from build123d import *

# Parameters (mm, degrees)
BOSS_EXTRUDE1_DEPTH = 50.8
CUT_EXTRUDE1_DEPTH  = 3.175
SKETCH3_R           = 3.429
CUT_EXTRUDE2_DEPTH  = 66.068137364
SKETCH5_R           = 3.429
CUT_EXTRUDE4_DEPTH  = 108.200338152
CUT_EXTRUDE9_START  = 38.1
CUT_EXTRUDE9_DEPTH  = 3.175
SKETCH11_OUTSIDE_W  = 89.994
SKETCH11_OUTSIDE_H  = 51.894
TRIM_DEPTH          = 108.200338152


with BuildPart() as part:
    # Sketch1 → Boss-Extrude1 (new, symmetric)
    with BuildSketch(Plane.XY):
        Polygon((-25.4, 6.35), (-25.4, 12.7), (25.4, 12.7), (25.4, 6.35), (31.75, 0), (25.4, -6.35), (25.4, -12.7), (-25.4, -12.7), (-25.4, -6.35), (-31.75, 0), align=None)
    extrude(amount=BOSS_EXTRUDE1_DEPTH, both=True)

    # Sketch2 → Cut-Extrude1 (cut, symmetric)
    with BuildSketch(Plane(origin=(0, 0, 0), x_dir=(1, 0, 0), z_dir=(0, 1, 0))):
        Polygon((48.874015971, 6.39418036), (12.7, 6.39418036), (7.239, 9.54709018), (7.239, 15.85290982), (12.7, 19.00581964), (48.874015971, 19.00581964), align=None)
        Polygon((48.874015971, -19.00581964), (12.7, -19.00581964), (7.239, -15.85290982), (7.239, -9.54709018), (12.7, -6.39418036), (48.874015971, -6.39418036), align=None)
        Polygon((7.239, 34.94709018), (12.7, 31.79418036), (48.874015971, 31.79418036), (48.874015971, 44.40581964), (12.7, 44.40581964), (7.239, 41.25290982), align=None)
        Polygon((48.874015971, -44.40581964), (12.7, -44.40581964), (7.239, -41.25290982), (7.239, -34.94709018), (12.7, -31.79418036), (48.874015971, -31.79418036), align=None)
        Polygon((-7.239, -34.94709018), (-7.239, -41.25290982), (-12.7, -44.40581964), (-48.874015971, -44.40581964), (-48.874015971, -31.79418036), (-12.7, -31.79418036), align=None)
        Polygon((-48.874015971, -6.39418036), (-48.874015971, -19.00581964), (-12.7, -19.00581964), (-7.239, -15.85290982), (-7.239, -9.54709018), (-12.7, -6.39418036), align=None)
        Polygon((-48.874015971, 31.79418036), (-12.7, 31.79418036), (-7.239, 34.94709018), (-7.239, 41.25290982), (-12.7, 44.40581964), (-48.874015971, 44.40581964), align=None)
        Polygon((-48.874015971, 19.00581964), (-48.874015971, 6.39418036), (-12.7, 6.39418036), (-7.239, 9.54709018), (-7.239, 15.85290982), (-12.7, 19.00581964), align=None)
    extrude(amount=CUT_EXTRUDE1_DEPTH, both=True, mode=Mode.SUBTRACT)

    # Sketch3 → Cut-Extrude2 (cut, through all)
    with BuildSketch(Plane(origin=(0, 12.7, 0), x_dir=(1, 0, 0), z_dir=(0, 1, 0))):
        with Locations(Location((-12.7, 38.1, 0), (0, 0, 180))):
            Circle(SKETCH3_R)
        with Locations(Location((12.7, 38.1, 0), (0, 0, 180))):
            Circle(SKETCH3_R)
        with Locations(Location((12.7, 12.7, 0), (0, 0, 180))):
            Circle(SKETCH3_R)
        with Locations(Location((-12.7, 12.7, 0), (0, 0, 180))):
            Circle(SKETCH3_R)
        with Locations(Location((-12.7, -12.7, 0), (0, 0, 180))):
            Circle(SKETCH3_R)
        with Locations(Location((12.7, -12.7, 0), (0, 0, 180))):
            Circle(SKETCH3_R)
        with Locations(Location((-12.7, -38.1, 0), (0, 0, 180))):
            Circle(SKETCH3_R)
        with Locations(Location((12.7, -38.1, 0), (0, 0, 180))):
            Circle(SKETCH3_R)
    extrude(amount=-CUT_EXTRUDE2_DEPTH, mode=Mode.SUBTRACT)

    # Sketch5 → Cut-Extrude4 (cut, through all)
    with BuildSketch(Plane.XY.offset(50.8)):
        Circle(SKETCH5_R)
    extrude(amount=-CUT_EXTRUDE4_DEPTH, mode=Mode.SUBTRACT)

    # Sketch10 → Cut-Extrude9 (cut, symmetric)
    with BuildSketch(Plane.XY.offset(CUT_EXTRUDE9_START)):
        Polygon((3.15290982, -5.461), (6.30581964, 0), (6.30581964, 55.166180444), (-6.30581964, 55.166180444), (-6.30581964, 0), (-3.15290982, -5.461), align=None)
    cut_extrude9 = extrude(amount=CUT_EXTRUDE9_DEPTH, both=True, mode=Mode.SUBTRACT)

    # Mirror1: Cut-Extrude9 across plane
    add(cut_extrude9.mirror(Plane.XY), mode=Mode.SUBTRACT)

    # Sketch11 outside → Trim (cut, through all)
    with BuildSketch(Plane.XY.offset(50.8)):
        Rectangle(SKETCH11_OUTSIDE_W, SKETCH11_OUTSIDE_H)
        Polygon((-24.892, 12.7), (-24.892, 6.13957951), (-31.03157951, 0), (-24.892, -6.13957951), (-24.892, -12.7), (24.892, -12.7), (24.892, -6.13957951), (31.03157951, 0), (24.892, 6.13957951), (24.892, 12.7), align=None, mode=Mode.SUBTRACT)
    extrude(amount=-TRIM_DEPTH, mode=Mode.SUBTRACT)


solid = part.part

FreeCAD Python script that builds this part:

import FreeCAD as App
import Part
import Sketcher
Q = App.Units.Quantity

doc = App.newDocument("Part")
body = doc.addObject("PartDesign::Body", "Body")

# Sketch on XY plane
sketch1 = body.newObject("Sketcher::SketchObject", "Sketch")
sketch1.AttachmentSupport = (doc.getObject("XY_Plane"), [""])
sketch1.MapMode = "FlatFace"
sketch1.addGeometry([
    Part.LineSegment(App.Vector(-25, 13, 0), App.Vector(-25, 6, 0)),  # 0
    Part.LineSegment(App.Vector(-25, 6, 0), App.Vector(-32, 0, 0)),  # 1
    Part.LineSegment(App.Vector(-32, 0, 0), App.Vector(-25, -6, 0)),  # 2
    Part.LineSegment(App.Vector(-25, -6, 0), App.Vector(-25, -13, 0)),  # 3
    Part.LineSegment(App.Vector(-25, -13, 0), App.Vector(25, -13, 0)),  # 4
    Part.LineSegment(App.Vector(25, -13, 0), App.Vector(25, -6, 0)),  # 5
    Part.LineSegment(App.Vector(25, -6, 0), App.Vector(32, 0, 0)),  # 6
    Part.LineSegment(App.Vector(32, 0, 0), App.Vector(25, 6, 0)),  # 7
    Part.LineSegment(App.Vector(25, 6, 0), App.Vector(25, 13, 0)),  # 8
    Part.LineSegment(App.Vector(25, 13, 0), App.Vector(-25, 13, 0)),  # 9
], False)
sketch1.addConstraint([
    Sketcher.Constraint("Coincident", 0, 2, 1, 1),
    Sketcher.Constraint("Coincident", 1, 2, 2, 1),
    Sketcher.Constraint("Coincident", 2, 2, 3, 1),
    Sketcher.Constraint("Coincident", 3, 2, 4, 1),
    Sketcher.Constraint("Coincident", 4, 2, 5, 1),
    Sketcher.Constraint("Coincident", 5, 2, 6, 1),
    Sketcher.Constraint("Coincident", 6, 2, 7, 1),
    Sketcher.Constraint("Coincident", 7, 2, 8, 1),
    Sketcher.Constraint("Coincident", 8, 2, 9, 1),
    Sketcher.Constraint("Coincident", 9, 2, 0, 1),
    Sketcher.Constraint("Vertical", 0),
    Sketcher.Constraint("Vertical", 3),
    Sketcher.Constraint("Horizontal", 4),
    Sketcher.Constraint("Vertical", 5),
    Sketcher.Constraint("Vertical", 8),
    Sketcher.Constraint("Horizontal", 9),
    Sketcher.Constraint("Symmetric", 0, 2, 5, 2, -1, 1),
    Sketcher.Constraint("Symmetric", 1, 2, 6, 2, -1, 1),
    Sketcher.Constraint("Symmetric", 2, 2, 7, 2, -1, 1),
    Sketcher.Constraint("Symmetric", 2, 2, 5, 2, -2),
    Sketcher.Constraint("PointOnObject", 1, 2, -1),
    Sketcher.Constraint("Perpendicular", 1, 2),
    Sketcher.Constraint("Equal", 0, 3),
    Sketcher.Constraint("DistanceX", 4, 1, 4, 2, Q("2 in")),
    Sketcher.Constraint("DistanceY", 4, 2, 8, 2, Q("1 in")),
    Sketcher.Constraint("DistanceY", 0, 2, 0, 1, Q("0.25 in")),
])
pad1 = body.newObject("PartDesign::Pad", "Pad")
pad1.Profile = sketch1
pad1.Length = Q("4 in")
pad1.Midplane = True

# Sketch on XZ plane
sketch2 = body.newObject("Sketcher::SketchObject", "Sketch001")
sketch2.AttachmentSupport = (doc.getObject("XZ_Plane"), [""])
sketch2.MapMode = "FlatFace"
sketch2.addGeometry([
    Part.LineSegment(App.Vector(13, -6, 0), App.Vector(49, -6, 0)),  # 0
    Part.LineSegment(App.Vector(49, -6, 0), App.Vector(49, -19, 0)),  # 1
    Part.LineSegment(App.Vector(49, -19, 0), App.Vector(13, -19, 0)),  # 2
    Part.LineSegment(App.Vector(13, -19, 0), App.Vector(7, -16, 0)),  # 3
    Part.LineSegment(App.Vector(7, -16, 0), App.Vector(7, -10, 0)),  # 4
    Part.LineSegment(App.Vector(7, -10, 0), App.Vector(13, -6, 0)),  # 5
    Part.LineSegment(App.Vector(13, 19, 0), App.Vector(49, 19, 0)),  # 6
    Part.LineSegment(App.Vector(49, 19, 0), App.Vector(49, 6, 0)),  # 7
    Part.LineSegment(App.Vector(49, 6, 0), App.Vector(13, 6, 0)),  # 8
    Part.LineSegment(App.Vector(13, 6, 0), App.Vector(7, 10, 0)),  # 9
    Part.LineSegment(App.Vector(7, 10, 0), App.Vector(7, 16, 0)),  # 10
    Part.LineSegment(App.Vector(7, 16, 0), App.Vector(13, 19, 0)),  # 11
    Part.LineSegment(App.Vector(7, -35, 0), App.Vector(13, -32, 0)),  # 12
    Part.LineSegment(App.Vector(13, -32, 0), App.Vector(49, -32, 0)),  # 13
    Part.LineSegment(App.Vector(49, -32, 0), App.Vector(49, -44, 0)),  # 14
    Part.LineSegment(App.Vector(49, -44, 0), App.Vector(13, -44, 0)),  # 15
    Part.LineSegment(App.Vector(13, -44, 0), App.Vector(7, -41, 0)),  # 16
    Part.LineSegment(App.Vector(7, -41, 0), App.Vector(7, -35, 0)),  # 17
    Part.LineSegment(App.Vector(13, 44, 0), App.Vector(49, 44, 0)),  # 18
    Part.LineSegment(App.Vector(49, 44, 0), App.Vector(49, 32, 0)),  # 19
    Part.LineSegment(App.Vector(49, 32, 0), App.Vector(13, 32, 0)),  # 20
    Part.LineSegment(App.Vector(13, 32, 0), App.Vector(7, 35, 0)),  # 21
    Part.LineSegment(App.Vector(7, 35, 0), App.Vector(7, 41, 0)),  # 22
    Part.LineSegment(App.Vector(7, 41, 0), App.Vector(13, 44, 0)),  # 23
    Part.LineSegment(App.Vector(-7, 41, 0), App.Vector(-7, 35, 0)),  # 24
    Part.LineSegment(App.Vector(-7, 35, 0), App.Vector(-13, 32, 0)),  # 25
    Part.LineSegment(App.Vector(-13, 32, 0), App.Vector(-49, 32, 0)),  # 26
    Part.LineSegment(App.Vector(-49, 32, 0), App.Vector(-49, 44, 0)),  # 27
    Part.LineSegment(App.Vector(-49, 44, 0), App.Vector(-13, 44, 0)),  # 28
    Part.LineSegment(App.Vector(-13, 44, 0), App.Vector(-7, 41, 0)),  # 29
    Part.LineSegment(App.Vector(-49, 6, 0), App.Vector(-49, 19, 0)),  # 30
    Part.LineSegment(App.Vector(-49, 19, 0), App.Vector(-13, 19, 0)),  # 31
    Part.LineSegment(App.Vector(-13, 19, 0), App.Vector(-7, 16, 0)),  # 32
    Part.LineSegment(App.Vector(-7, 16, 0), App.Vector(-7, 10, 0)),  # 33
    Part.LineSegment(App.Vector(-7, 10, 0), App.Vector(-13, 6, 0)),  # 34
    Part.LineSegment(App.Vector(-13, 6, 0), App.Vector(-49, 6, 0)),  # 35
    Part.LineSegment(App.Vector(-49, -32, 0), App.Vector(-13, -32, 0)),  # 36
    Part.LineSegment(App.Vector(-13, -32, 0), App.Vector(-7, -35, 0)),  # 37
    Part.LineSegment(App.Vector(-7, -35, 0), App.Vector(-7, -41, 0)),  # 38
    Part.LineSegment(App.Vector(-7, -41, 0), App.Vector(-13, -44, 0)),  # 39
    Part.LineSegment(App.Vector(-13, -44, 0), App.Vector(-49, -44, 0)),  # 40
    Part.LineSegment(App.Vector(-49, -44, 0), App.Vector(-49, -32, 0)),  # 41
    Part.LineSegment(App.Vector(-49, -19, 0), App.Vector(-49, -6, 0)),  # 42
    Part.LineSegment(App.Vector(-49, -6, 0), App.Vector(-13, -6, 0)),  # 43
    Part.LineSegment(App.Vector(-13, -6, 0), App.Vector(-7, -10, 0)),  # 44
    Part.LineSegment(App.Vector(-7, -10, 0), App.Vector(-7, -16, 0)),  # 45
    Part.LineSegment(App.Vector(-7, -16, 0), App.Vector(-13, -19, 0)),  # 46
    Part.LineSegment(App.Vector(-13, -19, 0), App.Vector(-49, -19, 0)),  # 47
], False)
sketch2.addConstraint([
    Sketcher.Constraint("Coincident", 0, 2, 1, 1),
    Sketcher.Constraint("Coincident", 1, 2, 2, 1),
    Sketcher.Constraint("Coincident", 2, 2, 3, 1),
    Sketcher.Constraint("Coincident", 3, 2, 4, 1),
    Sketcher.Constraint("Coincident", 4, 2, 5, 1),
    Sketcher.Constraint("Coincident", 5, 2, 0, 1),
    Sketcher.Constraint("Coincident", 6, 2, 7, 1),
    Sketcher.Constraint("Coincident", 7, 2, 8, 1),
    Sketcher.Constraint("Coincident", 8, 2, 9, 1),
    Sketcher.Constraint("Coincident", 9, 2, 10, 1),
    Sketcher.Constraint("Coincident", 10, 2, 11, 1),
    Sketcher.Constraint("Coincident", 11, 2, 6, 1),
    Sketcher.Constraint("Coincident", 12, 2, 13, 1),
    Sketcher.Constraint("Coincident", 13, 2, 14, 1),
    Sketcher.Constraint("Coincident", 14, 2, 15, 1),
    Sketcher.Constraint("Coincident", 15, 2, 16, 1),
    Sketcher.Constraint("Coincident", 16, 2, 17, 1),
    Sketcher.Constraint("Coincident", 17, 2, 12, 1),
    Sketcher.Constraint("Coincident", 18, 2, 19, 1),
    Sketcher.Constraint("Coincident", 19, 2, 20, 1),
    Sketcher.Constraint("Coincident", 20, 2, 21, 1),
    Sketcher.Constraint("Coincident", 21, 2, 22, 1),
    Sketcher.Constraint("Coincident", 22, 2, 23, 1),
    Sketcher.Constraint("Coincident", 23, 2, 18, 1),
    Sketcher.Constraint("Coincident", 24, 2, 25, 1),
    Sketcher.Constraint("Coincident", 25, 2, 26, 1),
    Sketcher.Constraint("Coincident", 26, 2, 27, 1),
    Sketcher.Constraint("Coincident", 27, 2, 28, 1),
    Sketcher.Constraint("Coincident", 28, 2, 29, 1),
    Sketcher.Constraint("Coincident", 29, 2, 24, 1),
    Sketcher.Constraint("Coincident", 30, 2, 31, 1),
    Sketcher.Constraint("Coincident", 31, 2, 32, 1),
    Sketcher.Constraint("Coincident", 32, 2, 33, 1),
    Sketcher.Constraint("Coincident", 33, 2, 34, 1),
    Sketcher.Constraint("Coincident", 34, 2, 35, 1),
    Sketcher.Constraint("Coincident", 35, 2, 30, 1),
    Sketcher.Constraint("Coincident", 36, 2, 37, 1),
    Sketcher.Constraint("Coincident", 37, 2, 38, 1),
    Sketcher.Constraint("Coincident", 38, 2, 39, 1),
    Sketcher.Constraint("Coincident", 39, 2, 40, 1),
    Sketcher.Constraint("Coincident", 40, 2, 41, 1),
    Sketcher.Constraint("Coincident", 41, 2, 36, 1),
    Sketcher.Constraint("Coincident", 42, 2, 43, 1),
    Sketcher.Constraint("Coincident", 43, 2, 44, 1),
    Sketcher.Constraint("Coincident", 44, 2, 45, 1),
    Sketcher.Constraint("Coincident", 45, 2, 46, 1),
    Sketcher.Constraint("Coincident", 46, 2, 47, 1),
    Sketcher.Constraint("Coincident", 47, 2, 42, 1),
    Sketcher.Constraint("Horizontal", 0),
    Sketcher.Constraint("Vertical", 1),
    Sketcher.Constraint("Horizontal", 2),
    Sketcher.Constraint("Vertical", 4),
    Sketcher.Constraint("Horizontal", 6),
    Sketcher.Constraint("Vertical", 7),
    Sketcher.Constraint("Horizontal", 8),
    Sketcher.Constraint("Vertical", 10),
    Sketcher.Constraint("Horizontal", 13),
    Sketcher.Constraint("Vertical", 14),
    Sketcher.Constraint("Horizontal", 15),
    Sketcher.Constraint("Vertical", 17),
    Sketcher.Constraint("Horizontal", 18),
    Sketcher.Constraint("Vertical", 19),
    Sketcher.Constraint("Horizontal", 20),
    Sketcher.Constraint("Vertical", 22),
    Sketcher.Constraint("Vertical", 24),
    Sketcher.Constraint("Horizontal", 26),
    Sketcher.Constraint("Vertical", 27),
    Sketcher.Constraint("Horizontal", 28),
    Sketcher.Constraint("Vertical", 30),
    Sketcher.Constraint("Horizontal", 31),
    Sketcher.Constraint("Vertical", 33),
    Sketcher.Constraint("Horizontal", 35),
    Sketcher.Constraint("Horizontal", 36),
    Sketcher.Constraint("Vertical", 38),
    Sketcher.Constraint("Horizontal", 40),
    Sketcher.Constraint("Vertical", 41),
    Sketcher.Constraint("Vertical", 42),
    Sketcher.Constraint("Horizontal", 43),
    Sketcher.Constraint("Vertical", 45),
    Sketcher.Constraint("Horizontal", 47),
    Sketcher.Constraint("Symmetric", 17, 2, 24, 2, -1, 1),
    Sketcher.Constraint("Symmetric", 12, 2, 25, 2, -1, 1),
    Sketcher.Constraint("Symmetric", 14, 2, 27, 2, -1, 1),
    Sketcher.Constraint("Symmetric", 1, 2, 30, 2, -1, 1),
    Sketcher.Constraint("Symmetric", 3, 2, 32, 2, -1, 1),
    Sketcher.Constraint("Symmetric", 5, 2, 34, 2, -1, 1),
    Sketcher.Constraint("Symmetric", 20, 2, 36, 2, -1, 1),
    Sketcher.Constraint("Symmetric", 21, 2, 37, 2, -1, 1),
    Sketcher.Constraint("Symmetric", 23, 2, 39, 2, -1, 1),
    Sketcher.Constraint("Symmetric", 7, 2, 42, 2, -1, 1),
    Sketcher.Constraint("Symmetric", 9, 2, 44, 2, -1, 1),
    Sketcher.Constraint("Symmetric", 11, 2, 46, 2, -1, 1),
    Sketcher.Constraint("Symmetric", 21, 2, 24, 2, -2),
    Sketcher.Constraint("Symmetric", 20, 2, 25, 2, -2),
    Sketcher.Constraint("Symmetric", 18, 2, 27, 2, -2),
    Sketcher.Constraint("Symmetric", 6, 2, 30, 2, -2),
    Sketcher.Constraint("Symmetric", 10, 2, 32, 2, -2),
    Sketcher.Constraint("Symmetric", 8, 2, 34, 2, -2),
    Sketcher.Constraint("Parallel", 3, 9),
    Sketcher.Constraint("Parallel", 5, 11),
    Sketcher.Constraint("Parallel", 11, 12),
    Sketcher.Constraint("Parallel", 9, 16),
    Sketcher.Constraint("Parallel", 16, 21),
    Sketcher.Constraint("Parallel", 12, 23),
    Sketcher.Constraint("Parallel", 21, 29),
    Sketcher.Constraint("Parallel", 29, 32),
    Sketcher.Constraint("Parallel", 25, 34),
    Sketcher.Constraint("Parallel", 34, 39),
    Sketcher.Constraint("Parallel", 37, 44),
    Sketcher.Constraint("Parallel", 39, 46),
    Sketcher.Constraint("Horizontal", 22, 2, 29, 2),
    Sketcher.Constraint("Horizontal", 16, 2, 38, 2),
    Sketcher.Constraint("Vertical", 2, 2, 5, 2),
    Sketcher.Constraint("Vertical", 11, 2, 12, 2),
    Sketcher.Constraint("Vertical", 7, 2, 13, 2),
    Sketcher.Constraint("Vertical", 12, 2, 15, 2),
    Sketcher.Constraint("Vertical", 10, 2, 16, 2),
    Sketcher.Constraint("Vertical", 35, 2, 40, 2),
    Sketcher.Constraint("Equal", 7, 14),
    Sketcher.Constraint("Angle", 3, Q("150 deg")),
    Sketcher.Constraint("DistanceY", 0, 2, 6, 2, Q("1 in")),
    Sketcher.Constraint("DistanceY", 12, 2, 5, 2, Q("1 in")),
    Sketcher.Constraint("DistanceX", 25, 2, 20, 2, Q("1 in")),
    Sketcher.Constraint("DistanceX", 24, 2, 21, 2, Q("0.57 in")),
    Sketcher.Constraint("DistanceY", 1, 2, 1, 1, Q("12.611639 mm")),
    Sketcher.Constraint("DistanceX", 0, 1, 0, 2, Q("36.174016 mm")),
])
pocket1 = body.newObject("PartDesign::Pocket", "Pocket")
pocket1.Profile = sketch2
pocket1.Length = Q("0.25 in")
pocket1.Midplane = True

# Sketch on XZ plane
sketch3 = body.newObject("Sketcher::SketchObject", "Sketch002")
sketch3.AttachmentSupport = (doc.getObject("XZ_Plane"), [""])
sketch3.MapMode = "FlatFace"
sketch3.AttachmentOffset = App.Placement(App.Vector(0, 0, -0.5 * 25.4), App.Rotation())
sketch3.addGeometry([
    Part.Circle(App.Vector(-12.7, -38.1, 0), App.Vector(0, 0, 1), 3.4),  # 0
    Part.Circle(App.Vector(12.7, -38.1, 0), App.Vector(0, 0, 1), 3.4),  # 1
    Part.Circle(App.Vector(12.7, -12.7, 0), App.Vector(0, 0, 1), 3.4),  # 2
    Part.Circle(App.Vector(-12.7, -12.7, 0), App.Vector(0, 0, 1), 3.4),  # 3
    Part.Circle(App.Vector(-12.7, 12.7, 0), App.Vector(0, 0, 1), 3.4),  # 4
    Part.Circle(App.Vector(12.7, 12.7, 0), App.Vector(0, 0, 1), 3.4),  # 5
    Part.Circle(App.Vector(-12.7, 38.1, 0), App.Vector(0, 0, 1), 3.4),  # 6
    Part.Circle(App.Vector(12.7, 38.1, 0), App.Vector(0, 0, 1), 3.4),  # 7
], False)
sketch3.addConstraint([
    Sketcher.Constraint("Equal", 0, 1),
    Sketcher.Constraint("Equal", 1, 2),
    Sketcher.Constraint("Equal", 2, 3),
    Sketcher.Constraint("Equal", 3, 4),
    Sketcher.Constraint("Equal", 4, 5),
    Sketcher.Constraint("Equal", 5, 6),
    Sketcher.Constraint("Equal", 6, 7),
    Sketcher.Constraint("Symmetric", 2, 3, 4, 3, -1, 1),
    Sketcher.Constraint("Symmetric", 3, 3, 5, 3, -1, 1),
    Sketcher.Constraint("Symmetric", 1, 3, 6, 3, -1, 1),
    Sketcher.Constraint("Symmetric", 0, 3, 7, 3, -1, 1),
    Sketcher.Constraint("Symmetric", 0, 3, 1, 3, -2),
    Sketcher.Constraint("Symmetric", 2, 3, 3, 3, -2),
    Sketcher.Constraint("Vertical", 1, 3, 2, 3),
    Sketcher.Constraint("Diameter", 0, Q("0.27 in")),
    Sketcher.Constraint("DistanceX", 0, 3, 1, 3, Q("1 in")),
    Sketcher.Constraint("DistanceY", 1, 3, 2, 3, Q("1 in")),
    Sketcher.Constraint("DistanceY", 3, 3, 4, 3, Q("1 in")),
])
pocket2 = body.newObject("PartDesign::Pocket", "Pocket001")
pocket2.Profile = sketch3
pocket2.Type = "ThroughAll"
pocket2.Reversed = True

# Sketch on XY plane
sketch4 = body.newObject("Sketcher::SketchObject", "Sketch003")
sketch4.AttachmentSupport = (doc.getObject("XY_Plane"), [""])
sketch4.MapMode = "FlatFace"
sketch4.AttachmentOffset = App.Placement(App.Vector(0, 0, 2 * 25.4), App.Rotation())
sketch4.addGeometry(Part.Circle(App.Vector(0, 0, 0), App.Vector(0, 0, 1), 3.4), False)
sketch4.addConstraint([
    Sketcher.Constraint("Coincident", 0, 3, -1, 1),
    Sketcher.Constraint("Diameter", 0, Q("0.27 in")),
])
pocket3 = body.newObject("PartDesign::Pocket", "Pocket002")
pocket3.Profile = sketch4
pocket3.Type = "ThroughAll"

# Sketch on XY plane
sketch5 = body.newObject("Sketcher::SketchObject", "Sketch004")
sketch5.AttachmentSupport = (doc.getObject("XY_Plane"), [""])
sketch5.MapMode = "FlatFace"
sketch5.AttachmentOffset = App.Placement(App.Vector(0, 0, 1.5 * 25.4), App.Rotation())
sketch5.addGeometry([
    Part.LineSegment(App.Vector(3, -5, 0), App.Vector(6, 0, 0)),  # 0
    Part.LineSegment(App.Vector(6, 0, 0), App.Vector(6, 55, 0)),  # 1
    Part.LineSegment(App.Vector(6, 55, 0), App.Vector(-6, 55, 0)),  # 2
    Part.LineSegment(App.Vector(-6, 55, 0), App.Vector(-6, 0, 0)),  # 3
    Part.LineSegment(App.Vector(-6, 0, 0), App.Vector(-3, -5, 0)),  # 4
    Part.LineSegment(App.Vector(-3, -5, 0), App.Vector(3, -5, 0)),  # 5
], False)
sketch5.addConstraint([
    Sketcher.Constraint("Coincident", 0, 2, 1, 1),
    Sketcher.Constraint("Coincident", 1, 2, 2, 1),
    Sketcher.Constraint("Coincident", 2, 2, 3, 1),
    Sketcher.Constraint("Coincident", 3, 2, 4, 1),
    Sketcher.Constraint("Coincident", 4, 2, 5, 1),
    Sketcher.Constraint("Coincident", 5, 2, 0, 1),
    Sketcher.Constraint("Vertical", 1),
    Sketcher.Constraint("Horizontal", 2),
    Sketcher.Constraint("Vertical", 3),
    Sketcher.Constraint("Horizontal", 5),
    Sketcher.Constraint("Symmetric", 0, 2, 3, 2, -1, 1),
    Sketcher.Constraint("PointOnObject", 0, 2, -1),
    Sketcher.Constraint("Equal", 0, 4),
    Sketcher.Constraint("Angle", 0, Q("60 deg")),
    Sketcher.Constraint("DistanceY", 4, 2, -1, 1, Q("0.215 in")),
    Sketcher.Constraint("DistanceX", 2, 2, 2, 1, Q("12.611639 mm")),
    Sketcher.Constraint("DistanceY", 1, 1, 1, 2, Q("55.16618 mm")),
])
pocket4 = body.newObject("PartDesign::Pocket", "Pocket003")
pocket4.Profile = sketch5
pocket4.Length = Q("0.25 in")
pocket4.Midplane = True
doc.recompute()

mirrored = body.newObject("PartDesign::Mirrored", "Mirrored")
mirrored.Originals = [pocket4]
mirrored.MirrorPlane = (doc.getObject("XY_Plane"), [""])
body.Tip = mirrored

# Sketch on XY plane
sketch6 = body.newObject("Sketcher::SketchObject", "Sketch005")
sketch6.AttachmentSupport = (doc.getObject("XY_Plane"), [""])
sketch6.MapMode = "FlatFace"
sketch6.AttachmentOffset = App.Placement(App.Vector(0, 0, 2 * 25.4), App.Rotation())
sketch6.addGeometry([
    Part.LineSegment(App.Vector(-45, 26, 0), App.Vector(-45, -26, 0)),  # 0
    Part.LineSegment(App.Vector(-45, -26, 0), App.Vector(45, -26, 0)),  # 1
    Part.LineSegment(App.Vector(45, -26, 0), App.Vector(45, 26, 0)),  # 2
    Part.LineSegment(App.Vector(45, 26, 0), App.Vector(-45, 26, 0)),  # 3
    Part.LineSegment(App.Vector(-25, 6, 0), App.Vector(-25, 13, 0)),  # 4
    Part.LineSegment(App.Vector(-25, 13, 0), App.Vector(25, 13, 0)),  # 5
    Part.LineSegment(App.Vector(25, 13, 0), App.Vector(25, 6, 0)),  # 6
    Part.LineSegment(App.Vector(25, 6, 0), App.Vector(31, 0, 0)),  # 7
    Part.LineSegment(App.Vector(31, 0, 0), App.Vector(25, -6, 0)),  # 8
    Part.LineSegment(App.Vector(25, -6, 0), App.Vector(25, -13, 0)),  # 9
    Part.LineSegment(App.Vector(25, -13, 0), App.Vector(-25, -13, 0)),  # 10
    Part.LineSegment(App.Vector(-25, -13, 0), App.Vector(-25, -6, 0)),  # 11
    Part.LineSegment(App.Vector(-25, -6, 0), App.Vector(-31, 0, 0)),  # 12
    Part.LineSegment(App.Vector(-31, 0, 0), App.Vector(-25, 6, 0)),  # 13
], False)
sketch6.addConstraint([
    Sketcher.Constraint("Coincident", 0, 2, 1, 1),
    Sketcher.Constraint("Coincident", 1, 2, 2, 1),
    Sketcher.Constraint("Coincident", 2, 2, 3, 1),
    Sketcher.Constraint("Coincident", 3, 2, 0, 1),
    Sketcher.Constraint("Coincident", 4, 2, 5, 1),
    Sketcher.Constraint("Coincident", 5, 2, 6, 1),
    Sketcher.Constraint("Coincident", 6, 2, 7, 1),
    Sketcher.Constraint("Coincident", 7, 2, 8, 1),
    Sketcher.Constraint("Coincident", 8, 2, 9, 1),
    Sketcher.Constraint("Coincident", 9, 2, 10, 1),
    Sketcher.Constraint("Coincident", 10, 2, 11, 1),
    Sketcher.Constraint("Coincident", 11, 2, 12, 1),
    Sketcher.Constraint("Coincident", 12, 2, 13, 1),
    Sketcher.Constraint("Coincident", 13, 2, 4, 1),
    Sketcher.Constraint("Vertical", 0),
    Sketcher.Constraint("Horizontal", 1),
    Sketcher.Constraint("Vertical", 2),
    Sketcher.Constraint("Horizontal", 3),
    Sketcher.Constraint("Vertical", 4),
    Sketcher.Constraint("Horizontal", 5),
    Sketcher.Constraint("Vertical", 6),
    Sketcher.Constraint("Vertical", 9),
    Sketcher.Constraint("Horizontal", 10),
    Sketcher.Constraint("Vertical", 11),
    Sketcher.Constraint("Symmetric", 0, 2, 2, 2, -1, 1),
    Sketcher.Constraint("Symmetric", 4, 2, 9, 2, -1, 1),
    Sketcher.Constraint("Symmetric", 6, 2, 11, 2, -1, 1),
    Sketcher.Constraint("Symmetric", 7, 2, 12, 2, -1, 1),
    Sketcher.Constraint("Symmetric", 8, 2, 11, 2, -2),
    Sketcher.Constraint("PointOnObject", 7, 2, -1),
    Sketcher.Constraint("Perpendicular", 7, 8),
    Sketcher.Constraint("Perpendicular", 12, 13),
    Sketcher.Constraint("DistanceY", 9, 2, 5, 2, Q("1 in")),
    Sketcher.Constraint("DistanceX", 5, 1, 5, 2, Q("1.96 in")),
    Sketcher.Constraint("DistanceX", 1, 1, 1, 2, Q("89.994 mm")),
    Sketcher.Constraint("DistanceY", 0, 2, 0, 1, Q("51.894 mm")),
    Sketcher.Constraint("DistanceY", 4, 1, 4, 2, Q("6.56042 mm")),
])
pocket5 = body.newObject("PartDesign::Pocket", "Pocket004")
pocket5.Profile = sketch6
pocket5.Type = "ThroughAll"

doc.recompute()
